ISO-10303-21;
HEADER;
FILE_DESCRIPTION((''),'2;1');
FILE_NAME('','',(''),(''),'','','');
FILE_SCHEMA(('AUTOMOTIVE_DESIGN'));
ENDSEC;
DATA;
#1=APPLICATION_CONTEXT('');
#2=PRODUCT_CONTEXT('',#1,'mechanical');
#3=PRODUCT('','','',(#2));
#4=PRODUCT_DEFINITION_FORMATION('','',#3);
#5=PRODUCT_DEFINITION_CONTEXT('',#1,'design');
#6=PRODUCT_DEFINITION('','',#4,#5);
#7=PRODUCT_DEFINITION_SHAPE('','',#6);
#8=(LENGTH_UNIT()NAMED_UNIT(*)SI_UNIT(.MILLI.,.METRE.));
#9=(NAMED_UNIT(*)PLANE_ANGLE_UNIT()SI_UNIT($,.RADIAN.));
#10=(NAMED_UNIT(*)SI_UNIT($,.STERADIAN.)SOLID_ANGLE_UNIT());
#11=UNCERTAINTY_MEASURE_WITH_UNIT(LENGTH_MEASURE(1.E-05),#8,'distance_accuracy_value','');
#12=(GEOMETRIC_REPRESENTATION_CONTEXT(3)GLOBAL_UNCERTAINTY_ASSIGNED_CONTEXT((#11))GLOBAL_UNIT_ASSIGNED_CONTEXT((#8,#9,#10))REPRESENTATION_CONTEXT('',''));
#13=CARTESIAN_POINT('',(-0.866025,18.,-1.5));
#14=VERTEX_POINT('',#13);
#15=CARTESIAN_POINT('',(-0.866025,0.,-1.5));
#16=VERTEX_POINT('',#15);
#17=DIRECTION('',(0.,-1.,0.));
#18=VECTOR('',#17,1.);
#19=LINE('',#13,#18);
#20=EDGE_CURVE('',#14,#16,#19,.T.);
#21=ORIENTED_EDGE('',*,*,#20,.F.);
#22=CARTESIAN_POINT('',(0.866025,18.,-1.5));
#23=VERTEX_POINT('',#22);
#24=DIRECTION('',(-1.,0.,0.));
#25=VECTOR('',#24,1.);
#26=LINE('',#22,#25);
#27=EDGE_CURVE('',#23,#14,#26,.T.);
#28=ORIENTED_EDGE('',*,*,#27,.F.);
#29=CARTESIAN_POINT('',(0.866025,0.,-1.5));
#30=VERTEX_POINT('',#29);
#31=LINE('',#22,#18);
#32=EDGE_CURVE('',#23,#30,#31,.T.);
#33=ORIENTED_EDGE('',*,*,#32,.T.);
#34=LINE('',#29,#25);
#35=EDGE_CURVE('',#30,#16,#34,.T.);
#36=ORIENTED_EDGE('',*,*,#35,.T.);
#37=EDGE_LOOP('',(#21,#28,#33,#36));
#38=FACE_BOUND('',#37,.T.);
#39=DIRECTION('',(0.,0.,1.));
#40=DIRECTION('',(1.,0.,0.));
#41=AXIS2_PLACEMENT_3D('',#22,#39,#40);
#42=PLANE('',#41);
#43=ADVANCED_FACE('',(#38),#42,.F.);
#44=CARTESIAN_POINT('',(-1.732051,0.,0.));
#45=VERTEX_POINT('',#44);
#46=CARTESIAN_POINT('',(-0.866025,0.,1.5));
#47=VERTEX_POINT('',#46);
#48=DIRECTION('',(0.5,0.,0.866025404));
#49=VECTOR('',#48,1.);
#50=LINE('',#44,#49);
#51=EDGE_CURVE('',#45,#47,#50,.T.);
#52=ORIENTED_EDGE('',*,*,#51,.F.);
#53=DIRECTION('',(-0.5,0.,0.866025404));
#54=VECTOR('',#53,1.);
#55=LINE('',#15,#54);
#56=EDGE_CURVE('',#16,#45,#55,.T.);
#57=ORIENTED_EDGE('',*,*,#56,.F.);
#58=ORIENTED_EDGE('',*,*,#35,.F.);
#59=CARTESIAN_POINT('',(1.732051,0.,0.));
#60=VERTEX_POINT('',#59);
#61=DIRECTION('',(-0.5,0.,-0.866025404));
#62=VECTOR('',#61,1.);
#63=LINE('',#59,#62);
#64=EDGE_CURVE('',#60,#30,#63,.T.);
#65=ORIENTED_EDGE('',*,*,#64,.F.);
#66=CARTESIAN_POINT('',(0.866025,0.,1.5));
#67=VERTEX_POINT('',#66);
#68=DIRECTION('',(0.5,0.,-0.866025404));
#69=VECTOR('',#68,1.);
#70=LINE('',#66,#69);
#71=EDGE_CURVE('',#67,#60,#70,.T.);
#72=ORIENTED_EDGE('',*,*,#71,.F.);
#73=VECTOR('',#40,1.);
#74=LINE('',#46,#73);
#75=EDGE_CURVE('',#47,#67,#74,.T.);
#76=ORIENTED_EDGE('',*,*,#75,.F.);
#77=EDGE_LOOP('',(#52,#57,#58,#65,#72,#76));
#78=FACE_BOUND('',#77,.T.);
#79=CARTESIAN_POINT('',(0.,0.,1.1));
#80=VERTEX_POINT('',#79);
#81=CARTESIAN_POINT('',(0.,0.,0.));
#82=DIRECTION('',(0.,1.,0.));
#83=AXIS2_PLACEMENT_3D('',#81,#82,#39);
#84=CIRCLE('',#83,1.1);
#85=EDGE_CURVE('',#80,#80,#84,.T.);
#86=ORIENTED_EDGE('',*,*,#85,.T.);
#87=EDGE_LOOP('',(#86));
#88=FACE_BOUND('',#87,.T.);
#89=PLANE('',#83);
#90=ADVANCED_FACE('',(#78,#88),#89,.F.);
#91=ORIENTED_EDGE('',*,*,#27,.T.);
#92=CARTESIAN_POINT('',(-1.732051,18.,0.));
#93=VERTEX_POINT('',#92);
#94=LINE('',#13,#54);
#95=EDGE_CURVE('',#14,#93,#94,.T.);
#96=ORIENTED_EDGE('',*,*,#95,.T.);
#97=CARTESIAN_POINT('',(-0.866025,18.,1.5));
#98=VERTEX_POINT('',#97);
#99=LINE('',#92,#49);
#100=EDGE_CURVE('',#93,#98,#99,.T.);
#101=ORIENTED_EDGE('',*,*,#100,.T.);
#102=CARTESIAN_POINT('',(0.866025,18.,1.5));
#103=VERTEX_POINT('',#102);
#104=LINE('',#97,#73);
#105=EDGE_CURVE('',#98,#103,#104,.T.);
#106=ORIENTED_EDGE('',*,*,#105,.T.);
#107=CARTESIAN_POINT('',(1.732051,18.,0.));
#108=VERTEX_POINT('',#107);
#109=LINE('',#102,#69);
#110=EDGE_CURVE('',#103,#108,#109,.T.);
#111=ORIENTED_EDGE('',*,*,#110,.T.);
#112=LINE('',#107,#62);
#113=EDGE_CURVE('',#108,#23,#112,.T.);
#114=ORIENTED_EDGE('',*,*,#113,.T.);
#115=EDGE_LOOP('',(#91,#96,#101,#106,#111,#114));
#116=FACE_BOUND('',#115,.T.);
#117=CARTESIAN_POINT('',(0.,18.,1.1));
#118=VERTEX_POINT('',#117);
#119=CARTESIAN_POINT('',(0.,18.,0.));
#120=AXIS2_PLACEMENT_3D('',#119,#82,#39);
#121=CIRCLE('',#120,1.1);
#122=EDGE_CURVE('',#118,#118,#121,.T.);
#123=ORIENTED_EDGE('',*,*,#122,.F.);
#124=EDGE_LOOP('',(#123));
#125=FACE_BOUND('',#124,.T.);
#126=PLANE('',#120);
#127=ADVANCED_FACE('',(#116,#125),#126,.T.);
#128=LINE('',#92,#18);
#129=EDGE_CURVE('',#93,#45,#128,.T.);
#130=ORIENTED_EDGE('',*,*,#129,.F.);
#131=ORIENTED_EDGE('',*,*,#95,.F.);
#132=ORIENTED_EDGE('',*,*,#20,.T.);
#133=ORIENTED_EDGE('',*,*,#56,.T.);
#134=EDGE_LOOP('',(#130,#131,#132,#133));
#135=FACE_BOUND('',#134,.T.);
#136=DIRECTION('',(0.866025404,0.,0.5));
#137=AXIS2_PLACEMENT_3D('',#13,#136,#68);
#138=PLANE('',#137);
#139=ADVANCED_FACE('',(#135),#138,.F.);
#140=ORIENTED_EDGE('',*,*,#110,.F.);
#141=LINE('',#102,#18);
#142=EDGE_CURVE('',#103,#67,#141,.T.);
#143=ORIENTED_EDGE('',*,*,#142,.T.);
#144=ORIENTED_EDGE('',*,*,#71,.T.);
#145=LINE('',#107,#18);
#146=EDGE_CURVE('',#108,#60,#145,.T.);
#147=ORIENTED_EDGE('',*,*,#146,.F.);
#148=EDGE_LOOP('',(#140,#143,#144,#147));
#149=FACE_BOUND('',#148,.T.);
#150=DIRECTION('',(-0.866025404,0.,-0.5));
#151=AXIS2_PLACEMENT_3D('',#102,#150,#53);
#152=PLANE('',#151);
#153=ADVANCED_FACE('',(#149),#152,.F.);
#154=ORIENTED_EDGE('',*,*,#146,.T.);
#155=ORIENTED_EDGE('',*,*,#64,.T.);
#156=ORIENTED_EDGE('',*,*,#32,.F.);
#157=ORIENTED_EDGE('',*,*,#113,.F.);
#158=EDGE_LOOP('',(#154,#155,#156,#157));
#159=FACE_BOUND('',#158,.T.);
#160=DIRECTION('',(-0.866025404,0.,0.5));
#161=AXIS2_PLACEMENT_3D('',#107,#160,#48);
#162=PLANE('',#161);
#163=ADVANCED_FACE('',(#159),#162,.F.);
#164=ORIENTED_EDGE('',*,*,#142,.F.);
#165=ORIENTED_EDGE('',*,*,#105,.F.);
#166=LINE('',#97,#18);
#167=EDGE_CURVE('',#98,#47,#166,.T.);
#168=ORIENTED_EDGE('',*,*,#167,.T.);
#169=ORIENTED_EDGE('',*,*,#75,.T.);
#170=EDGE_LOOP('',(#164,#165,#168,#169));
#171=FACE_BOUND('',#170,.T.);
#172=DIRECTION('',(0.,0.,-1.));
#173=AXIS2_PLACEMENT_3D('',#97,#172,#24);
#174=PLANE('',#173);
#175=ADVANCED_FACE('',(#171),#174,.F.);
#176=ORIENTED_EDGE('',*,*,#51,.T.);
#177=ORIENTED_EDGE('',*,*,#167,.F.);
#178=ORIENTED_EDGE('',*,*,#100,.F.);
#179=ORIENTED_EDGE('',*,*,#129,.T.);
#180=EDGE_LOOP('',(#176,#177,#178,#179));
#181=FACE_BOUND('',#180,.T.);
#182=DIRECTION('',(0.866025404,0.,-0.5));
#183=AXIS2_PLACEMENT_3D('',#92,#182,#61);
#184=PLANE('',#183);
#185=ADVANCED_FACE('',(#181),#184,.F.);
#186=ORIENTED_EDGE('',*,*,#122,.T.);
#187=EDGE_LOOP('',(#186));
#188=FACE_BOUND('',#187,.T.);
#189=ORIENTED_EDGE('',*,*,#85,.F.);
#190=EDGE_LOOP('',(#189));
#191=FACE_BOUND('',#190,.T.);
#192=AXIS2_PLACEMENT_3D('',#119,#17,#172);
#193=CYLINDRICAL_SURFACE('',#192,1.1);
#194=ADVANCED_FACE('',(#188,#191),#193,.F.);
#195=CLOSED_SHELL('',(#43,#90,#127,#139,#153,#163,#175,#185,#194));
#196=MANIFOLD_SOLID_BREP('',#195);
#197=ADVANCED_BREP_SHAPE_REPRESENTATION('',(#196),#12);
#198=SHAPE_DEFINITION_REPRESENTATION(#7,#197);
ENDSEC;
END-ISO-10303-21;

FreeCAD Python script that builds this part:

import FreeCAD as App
import Part
import Sketcher
from FreeCAD import Vector
Q = App.Units.Quantity

doc = App.newDocument("Part")
body = doc.addObject("PartDesign::Body", "Body")

# Sketch on XZ plane
sketch1 = doc.addObject("Sketcher::SketchObject", "Sketch")
body.addObject(sketch1)
sketch1.AttachmentSupport = (doc.XZ_Plane, [""])
sketch1.MapMode = "FlatFace"
sketch1.addGeometry([
    Part.LineSegment(Vector(0.9, 1.5, 0), Vector(1.7, 0, 0)),  # 0
    Part.LineSegment(Vector(1.7, 0, 0), Vector(0.9, -1.5, 0)),  # 1
    Part.LineSegment(Vector(0.9, -1.5, 0), Vector(-0.9, -1.5, 0)),  # 2
    Part.LineSegment(Vector(-0.9, -1.5, 0), Vector(-1.7, 0, 0)),  # 3
    Part.LineSegment(Vector(-1.7, 0, 0), Vector(-0.9, 1.5, 0)),  # 4
    Part.LineSegment(Vector(-0.9, 1.5, 0), Vector(0.9, 1.5, 0)),  # 5
    Part.Circle(Vector(0, 0, 0), Vector(0, 0, 1), 1.1),  # 6
], False)
sketch1.addConstraint([
    Sketcher.Constraint("Coincident", 0, 2, 1, 1),
    Sketcher.Constraint("Coincident", 1, 2, 2, 1),
    Sketcher.Constraint("Coincident", 2, 2, 3, 1),
    Sketcher.Constraint("Coincident", 3, 2, 4, 1),
    Sketcher.Constraint("Coincident", 4, 2, 5, 1),
    Sketcher.Constraint("Coincident", 5, 2, 0, 1),
    Sketcher.Constraint("Horizontal", 2),
    Sketcher.Constraint("Horizontal", 5),
    Sketcher.Constraint("Coincident", 6, 3, -1, 1),
    Sketcher.Constraint("Symmetric", 0, 2, 3, 2, -1, 1),
    Sketcher.Constraint("Symmetric", 1, 2, 4, 2, -1, 1),
    Sketcher.Constraint("PointOnObject", 0, 2, -1),
    Sketcher.Constraint("Parallel", 0, 3),
    Sketcher.Constraint("Vertical", 2, 2, 4, 2),
    Sketcher.Constraint("Diameter", 6, Q("2.2 mm")),
    Sketcher.Constraint("Angle", 0, Q("-60 deg")),
    Sketcher.Constraint("DistanceY", 2, 2, 4, 2, Q("3 mm")),
    Sketcher.Constraint("DistanceX", 2, 2, 2, 1, Q("1.732051 mm")),
])
pad1 = doc.addObject("PartDesign::Pad", "Pad")
body.addObject(pad1)
pad1.Profile = sketch1
pad1.Length = 18
pad1.Reversed = True

doc.recompute()
